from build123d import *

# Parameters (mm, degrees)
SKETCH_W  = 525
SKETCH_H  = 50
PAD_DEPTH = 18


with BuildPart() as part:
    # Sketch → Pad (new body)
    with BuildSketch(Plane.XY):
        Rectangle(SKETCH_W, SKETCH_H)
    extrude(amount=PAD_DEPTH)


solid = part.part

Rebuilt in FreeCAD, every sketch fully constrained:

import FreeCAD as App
import Part
import Sketcher


def add_polygon(sketch, points):
    """Adds a closed chain of lines whose ends are joined by coincident constraints."""
    first, n = sketch.GeometryCount, len(points)
    for a, b in zip(points, points[1:] + points[:1]):
        sketch.addGeometry(Part.LineSegment(App.Vector(*a, 0), App.Vector(*b, 0)), False)
    for i in range(n):
        sketch.addConstraint(Sketcher.Constraint("Coincident", first + i, 2, first + (i + 1) % n, 1))

doc = App.newDocument("Part")
body = doc.addObject("PartDesign::Body", "Body")

# Sketch on XY plane
sketch1 = body.newObject("Sketcher::SketchObject", "Sketch")
sketch1.AttachmentSupport = (doc.getObject("XY_Plane"), [""])
sketch1.MapMode = "FlatFace"
add_polygon(sketch1, [(-262, 25), (-262, -25), (262, -25), (262, 25)])  # lines 0-3
sketch1.addConstraint([
    Sketcher.Constraint("Vertical", 0),
    Sketcher.Constraint("Horizontal", 1),
    Sketcher.Constraint("Vertical", 2),
    Sketcher.Constraint("Horizontal", 3),
    Sketcher.Constraint("Symmetric", 0, 2, 2, 2, -1, 1),
    Sketcher.Constraint("DistanceX", 1, 1, 1, 2, 525.0),
    Sketcher.Constraint("DistanceY", 0, 2, 0, 1, 50.0),
])
pad1 = body.newObject("PartDesign::Pad", "Pad")
pad1.Profile = sketch1
pad1.Length = 18

doc.recompute()
